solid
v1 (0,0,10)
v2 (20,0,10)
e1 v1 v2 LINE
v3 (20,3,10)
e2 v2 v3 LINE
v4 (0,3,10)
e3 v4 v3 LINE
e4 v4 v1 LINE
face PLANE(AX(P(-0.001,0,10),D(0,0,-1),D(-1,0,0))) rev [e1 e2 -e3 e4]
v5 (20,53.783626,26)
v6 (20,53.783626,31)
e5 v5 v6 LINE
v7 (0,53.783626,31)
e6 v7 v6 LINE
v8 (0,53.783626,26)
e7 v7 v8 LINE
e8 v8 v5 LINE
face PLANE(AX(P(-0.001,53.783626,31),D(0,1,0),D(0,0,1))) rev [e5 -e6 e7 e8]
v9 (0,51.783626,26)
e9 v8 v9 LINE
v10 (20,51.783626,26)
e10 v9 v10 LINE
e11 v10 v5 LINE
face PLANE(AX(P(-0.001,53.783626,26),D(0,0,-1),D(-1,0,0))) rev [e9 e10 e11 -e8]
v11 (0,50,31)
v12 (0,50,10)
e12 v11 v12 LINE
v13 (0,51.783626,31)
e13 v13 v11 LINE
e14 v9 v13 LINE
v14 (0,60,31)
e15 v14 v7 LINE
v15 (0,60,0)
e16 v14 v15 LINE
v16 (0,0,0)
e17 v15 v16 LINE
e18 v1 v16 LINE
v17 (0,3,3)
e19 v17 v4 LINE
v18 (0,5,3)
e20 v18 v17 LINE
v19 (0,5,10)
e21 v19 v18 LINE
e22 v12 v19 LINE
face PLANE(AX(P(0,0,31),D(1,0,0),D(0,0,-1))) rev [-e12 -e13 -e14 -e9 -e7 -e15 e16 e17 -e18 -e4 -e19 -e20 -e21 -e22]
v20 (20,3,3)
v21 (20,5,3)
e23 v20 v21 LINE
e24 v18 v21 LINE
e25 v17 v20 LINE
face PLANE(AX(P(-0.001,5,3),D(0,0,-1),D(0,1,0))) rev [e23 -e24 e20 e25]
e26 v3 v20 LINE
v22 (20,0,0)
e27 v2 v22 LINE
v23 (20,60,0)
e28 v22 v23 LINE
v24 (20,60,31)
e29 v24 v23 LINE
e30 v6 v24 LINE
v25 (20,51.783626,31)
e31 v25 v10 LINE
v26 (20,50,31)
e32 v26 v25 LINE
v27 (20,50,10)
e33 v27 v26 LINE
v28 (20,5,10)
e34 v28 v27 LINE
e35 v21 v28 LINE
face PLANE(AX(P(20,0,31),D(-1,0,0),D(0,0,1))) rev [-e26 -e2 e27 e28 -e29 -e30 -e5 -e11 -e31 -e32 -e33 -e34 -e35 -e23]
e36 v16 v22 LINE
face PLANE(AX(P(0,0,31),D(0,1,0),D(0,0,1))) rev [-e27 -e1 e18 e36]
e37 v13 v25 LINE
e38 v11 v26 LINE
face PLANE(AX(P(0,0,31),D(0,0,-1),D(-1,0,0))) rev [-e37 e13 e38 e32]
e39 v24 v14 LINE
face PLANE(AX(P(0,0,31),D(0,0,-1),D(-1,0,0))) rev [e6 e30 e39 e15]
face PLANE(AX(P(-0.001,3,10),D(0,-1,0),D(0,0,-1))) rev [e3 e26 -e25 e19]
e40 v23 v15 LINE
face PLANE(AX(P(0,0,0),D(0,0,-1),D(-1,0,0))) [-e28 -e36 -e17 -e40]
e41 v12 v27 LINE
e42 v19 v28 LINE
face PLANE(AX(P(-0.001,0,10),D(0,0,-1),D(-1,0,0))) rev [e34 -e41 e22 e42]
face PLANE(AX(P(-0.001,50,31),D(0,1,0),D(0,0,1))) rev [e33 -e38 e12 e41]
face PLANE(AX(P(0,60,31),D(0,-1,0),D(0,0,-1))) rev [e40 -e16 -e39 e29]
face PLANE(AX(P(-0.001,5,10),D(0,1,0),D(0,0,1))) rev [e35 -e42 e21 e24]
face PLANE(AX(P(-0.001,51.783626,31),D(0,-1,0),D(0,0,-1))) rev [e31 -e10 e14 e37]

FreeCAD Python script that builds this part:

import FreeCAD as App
import Part
import Sketcher

V = App.Vector

doc = App.newDocument("Part")
body = doc.addObject("PartDesign::Body", "Body")

sketch1 = body.newObject("Sketcher::SketchObject", "Sketch")
sketch1.AttachmentSupport = (doc.getObject("XY_Plane"), [""])
sketch1.MapMode = "FlatFace"
sketch1.addGeometry([
    Part.LineSegment(V(0, 60, 0), V(0, 0, 0)),
    Part.LineSegment(V(0, 0, 0), V(20, 0, 0)),
    Part.LineSegment(V(20, 0, 0), V(20, 60, 0)),
    Part.LineSegment(V(20, 60, 0), V(0, 60, 0)),
], False)
sketch1.addConstraint([
    Sketcher.Constraint("Coincident", 0, 2, 1, 1),
    Sketcher.Constraint("Coincident", 1, 2, 2, 1),
    Sketcher.Constraint("Coincident", 2, 2, 3, 1),
    Sketcher.Constraint("Coincident", 3, 2, 0, 1),
    Sketcher.Constraint("Vertical", 0),
    Sketcher.Constraint("Horizontal", 1),
    Sketcher.Constraint("Vertical", 2),
    Sketcher.Constraint("Horizontal", 3),
    Sketcher.Constraint("Coincident", 0, 2, -1, 1),
    Sketcher.Constraint("DistanceX", 1, 1, 1, 2, 20.0),
    Sketcher.Constraint("DistanceY", 0, 2, 0, 1, 60.0),
])
pad1 = body.newObject("PartDesign::Pad", "Pad")
pad1.Profile = sketch1
pad1.Length = 31

sketch2 = body.newObject("Sketcher::SketchObject", "Sketch001")
sketch2.AttachmentSupport = (doc.getObject("YZ_Plane"), [""])
sketch2.MapMode = "FlatFace"
sketch2.AttachmentOffset = App.Placement(V(0, 0, 20), App.Rotation())
sketch2.addGeometry([
    Part.LineSegment(V(50, 31, 0), V(0, 31, 0)),
    Part.LineSegment(V(0, 31, 0), V(0, 10, 0)),
    Part.LineSegment(V(0, 10, 0), V(50, 10, 0)),
    Part.LineSegment(V(50, 10, 0), V(50, 31, 0)),
], False)
sketch2.addConstraint([
    Sketcher.Constraint("Coincident", 0, 2, 1, 1),
    Sketcher.Constraint("Coincident", 1, 2, 2, 1),
    Sketcher.Constraint("Coincident", 2, 2, 3, 1),
    Sketcher.Constraint("Coincident", 3, 2, 0, 1),
    Sketcher.Constraint("Horizontal", 0),
    Sketcher.Constraint("Vertical", 1),
    Sketcher.Constraint("Horizontal", 2),
    Sketcher.Constraint("Vertical", 3),
    Sketcher.Constraint("PointOnObject", 0, 2, -2),
    Sketcher.Constraint("DistanceX", 0, 2, 0, 1, 50.0),
    Sketcher.Constraint("DistanceY", 1, 2, 1, 1, 21.0),
    Sketcher.Constraint("DistanceY", -1, 1, 0, 2, 31.0),
])
pocket1 = body.newObject("PartDesign::Pocket", "Pocket")
pocket1.Profile = sketch2
pocket1.Type = "UpToFirst"

sketch3 = body.newObject("Sketcher::SketchObject", "Sketch002")
sketch3.AttachmentSupport = (doc.getObject("YZ_Plane"), [""])
sketch3.MapMode = "FlatFace"
sketch3.AttachmentOffset = App.Placement(V(0, 0, 20), App.Rotation())
sketch3.addGeometry([
    Part.LineSegment(V(53.8, 31, 0), V(51.8, 31, 0)),
    Part.LineSegment(V(51.8, 31, 0), V(51.8, 26, 0)),
    Part.LineSegment(V(51.8, 26, 0), V(53.8, 26, 0)),
    Part.LineSegment(V(53.8, 26, 0), V(53.8, 31, 0)),
], False)
sketch3.addConstraint([
    Sketcher.Constraint("Coincident", 0, 2, 1, 1),
    Sketcher.Constraint("Coincident", 1, 2, 2, 1),
    Sketcher.Constraint("Coincident", 2, 2, 3, 1),
    Sketcher.Constraint("Coincident", 3, 2, 0, 1),
    Sketcher.Constraint("Horizontal", 0),
    Sketcher.Constraint("Vertical", 1),
    Sketcher.Constraint("Horizontal", 2),
    Sketcher.Constraint("Vertical", 3),
    Sketcher.Constraint("DistanceX", 0, 2, 0, 1, 2.0),
    Sketcher.Constraint("DistanceY", 1, 2, 1, 1, 5.0),
    Sketcher.Constraint("DistanceY", -1, 1, 0, 2, 31.0),
    Sketcher.Constraint("DistanceX", -1, 1, 0, 2, 51.783626),
])
pocket2 = body.newObject("PartDesign::Pocket", "Pocket001")
pocket2.Profile = sketch3
pocket2.Type = "UpToFirst"

sketch4 = body.newObject("Sketcher::SketchObject", "Sketch003")
sketch4.AttachmentSupport = (doc.getObject("YZ_Plane"), [""])
sketch4.MapMode = "FlatFace"
sketch4.AttachmentOffset = App.Placement(V(0, 0, 20), App.Rotation())
sketch4.addGeometry([
    Part.LineSegment(V(5, 10, 0), V(3, 10, 0)),
    Part.LineSegment(V(3, 10, 0), V(3, 3, 0)),
    Part.LineSegment(V(3, 3, 0), V(5, 3, 0)),
    Part.LineSegment(V(5, 3, 0), V(5, 10, 0)),
], False)
sketch4.addConstraint([
    Sketcher.Constraint("Coincident", 0, 2, 1, 1),
    Sketcher.Constraint("Coincident", 1, 2, 2, 1),
    Sketcher.Constraint("Coincident", 2, 2, 3, 1),
    Sketcher.Constraint("Coincident", 3, 2, 0, 1),
    Sketcher.Constraint("Horizontal", 0),
    Sketcher.Constraint("Vertical", 1),
    Sketcher.Constraint("Horizontal", 2),
    Sketcher.Constraint("Vertical", 3),
    Sketcher.Constraint("DistanceX", 0, 2, 0, 1, 2.0),
    Sketcher.Constraint("DistanceY", 1, 2, 1, 1, 7.0),
    Sketcher.Constraint("DistanceX", -1, 1, 0, 2, 3.0),
    Sketcher.Constraint("DistanceY", -1, 1, 0, 2, 10.0),
])
pocket3 = body.newObject("PartDesign::Pocket", "Pocket002")
pocket3.Profile = sketch4
pocket3.Type = "UpToFirst"

doc.recompute()
